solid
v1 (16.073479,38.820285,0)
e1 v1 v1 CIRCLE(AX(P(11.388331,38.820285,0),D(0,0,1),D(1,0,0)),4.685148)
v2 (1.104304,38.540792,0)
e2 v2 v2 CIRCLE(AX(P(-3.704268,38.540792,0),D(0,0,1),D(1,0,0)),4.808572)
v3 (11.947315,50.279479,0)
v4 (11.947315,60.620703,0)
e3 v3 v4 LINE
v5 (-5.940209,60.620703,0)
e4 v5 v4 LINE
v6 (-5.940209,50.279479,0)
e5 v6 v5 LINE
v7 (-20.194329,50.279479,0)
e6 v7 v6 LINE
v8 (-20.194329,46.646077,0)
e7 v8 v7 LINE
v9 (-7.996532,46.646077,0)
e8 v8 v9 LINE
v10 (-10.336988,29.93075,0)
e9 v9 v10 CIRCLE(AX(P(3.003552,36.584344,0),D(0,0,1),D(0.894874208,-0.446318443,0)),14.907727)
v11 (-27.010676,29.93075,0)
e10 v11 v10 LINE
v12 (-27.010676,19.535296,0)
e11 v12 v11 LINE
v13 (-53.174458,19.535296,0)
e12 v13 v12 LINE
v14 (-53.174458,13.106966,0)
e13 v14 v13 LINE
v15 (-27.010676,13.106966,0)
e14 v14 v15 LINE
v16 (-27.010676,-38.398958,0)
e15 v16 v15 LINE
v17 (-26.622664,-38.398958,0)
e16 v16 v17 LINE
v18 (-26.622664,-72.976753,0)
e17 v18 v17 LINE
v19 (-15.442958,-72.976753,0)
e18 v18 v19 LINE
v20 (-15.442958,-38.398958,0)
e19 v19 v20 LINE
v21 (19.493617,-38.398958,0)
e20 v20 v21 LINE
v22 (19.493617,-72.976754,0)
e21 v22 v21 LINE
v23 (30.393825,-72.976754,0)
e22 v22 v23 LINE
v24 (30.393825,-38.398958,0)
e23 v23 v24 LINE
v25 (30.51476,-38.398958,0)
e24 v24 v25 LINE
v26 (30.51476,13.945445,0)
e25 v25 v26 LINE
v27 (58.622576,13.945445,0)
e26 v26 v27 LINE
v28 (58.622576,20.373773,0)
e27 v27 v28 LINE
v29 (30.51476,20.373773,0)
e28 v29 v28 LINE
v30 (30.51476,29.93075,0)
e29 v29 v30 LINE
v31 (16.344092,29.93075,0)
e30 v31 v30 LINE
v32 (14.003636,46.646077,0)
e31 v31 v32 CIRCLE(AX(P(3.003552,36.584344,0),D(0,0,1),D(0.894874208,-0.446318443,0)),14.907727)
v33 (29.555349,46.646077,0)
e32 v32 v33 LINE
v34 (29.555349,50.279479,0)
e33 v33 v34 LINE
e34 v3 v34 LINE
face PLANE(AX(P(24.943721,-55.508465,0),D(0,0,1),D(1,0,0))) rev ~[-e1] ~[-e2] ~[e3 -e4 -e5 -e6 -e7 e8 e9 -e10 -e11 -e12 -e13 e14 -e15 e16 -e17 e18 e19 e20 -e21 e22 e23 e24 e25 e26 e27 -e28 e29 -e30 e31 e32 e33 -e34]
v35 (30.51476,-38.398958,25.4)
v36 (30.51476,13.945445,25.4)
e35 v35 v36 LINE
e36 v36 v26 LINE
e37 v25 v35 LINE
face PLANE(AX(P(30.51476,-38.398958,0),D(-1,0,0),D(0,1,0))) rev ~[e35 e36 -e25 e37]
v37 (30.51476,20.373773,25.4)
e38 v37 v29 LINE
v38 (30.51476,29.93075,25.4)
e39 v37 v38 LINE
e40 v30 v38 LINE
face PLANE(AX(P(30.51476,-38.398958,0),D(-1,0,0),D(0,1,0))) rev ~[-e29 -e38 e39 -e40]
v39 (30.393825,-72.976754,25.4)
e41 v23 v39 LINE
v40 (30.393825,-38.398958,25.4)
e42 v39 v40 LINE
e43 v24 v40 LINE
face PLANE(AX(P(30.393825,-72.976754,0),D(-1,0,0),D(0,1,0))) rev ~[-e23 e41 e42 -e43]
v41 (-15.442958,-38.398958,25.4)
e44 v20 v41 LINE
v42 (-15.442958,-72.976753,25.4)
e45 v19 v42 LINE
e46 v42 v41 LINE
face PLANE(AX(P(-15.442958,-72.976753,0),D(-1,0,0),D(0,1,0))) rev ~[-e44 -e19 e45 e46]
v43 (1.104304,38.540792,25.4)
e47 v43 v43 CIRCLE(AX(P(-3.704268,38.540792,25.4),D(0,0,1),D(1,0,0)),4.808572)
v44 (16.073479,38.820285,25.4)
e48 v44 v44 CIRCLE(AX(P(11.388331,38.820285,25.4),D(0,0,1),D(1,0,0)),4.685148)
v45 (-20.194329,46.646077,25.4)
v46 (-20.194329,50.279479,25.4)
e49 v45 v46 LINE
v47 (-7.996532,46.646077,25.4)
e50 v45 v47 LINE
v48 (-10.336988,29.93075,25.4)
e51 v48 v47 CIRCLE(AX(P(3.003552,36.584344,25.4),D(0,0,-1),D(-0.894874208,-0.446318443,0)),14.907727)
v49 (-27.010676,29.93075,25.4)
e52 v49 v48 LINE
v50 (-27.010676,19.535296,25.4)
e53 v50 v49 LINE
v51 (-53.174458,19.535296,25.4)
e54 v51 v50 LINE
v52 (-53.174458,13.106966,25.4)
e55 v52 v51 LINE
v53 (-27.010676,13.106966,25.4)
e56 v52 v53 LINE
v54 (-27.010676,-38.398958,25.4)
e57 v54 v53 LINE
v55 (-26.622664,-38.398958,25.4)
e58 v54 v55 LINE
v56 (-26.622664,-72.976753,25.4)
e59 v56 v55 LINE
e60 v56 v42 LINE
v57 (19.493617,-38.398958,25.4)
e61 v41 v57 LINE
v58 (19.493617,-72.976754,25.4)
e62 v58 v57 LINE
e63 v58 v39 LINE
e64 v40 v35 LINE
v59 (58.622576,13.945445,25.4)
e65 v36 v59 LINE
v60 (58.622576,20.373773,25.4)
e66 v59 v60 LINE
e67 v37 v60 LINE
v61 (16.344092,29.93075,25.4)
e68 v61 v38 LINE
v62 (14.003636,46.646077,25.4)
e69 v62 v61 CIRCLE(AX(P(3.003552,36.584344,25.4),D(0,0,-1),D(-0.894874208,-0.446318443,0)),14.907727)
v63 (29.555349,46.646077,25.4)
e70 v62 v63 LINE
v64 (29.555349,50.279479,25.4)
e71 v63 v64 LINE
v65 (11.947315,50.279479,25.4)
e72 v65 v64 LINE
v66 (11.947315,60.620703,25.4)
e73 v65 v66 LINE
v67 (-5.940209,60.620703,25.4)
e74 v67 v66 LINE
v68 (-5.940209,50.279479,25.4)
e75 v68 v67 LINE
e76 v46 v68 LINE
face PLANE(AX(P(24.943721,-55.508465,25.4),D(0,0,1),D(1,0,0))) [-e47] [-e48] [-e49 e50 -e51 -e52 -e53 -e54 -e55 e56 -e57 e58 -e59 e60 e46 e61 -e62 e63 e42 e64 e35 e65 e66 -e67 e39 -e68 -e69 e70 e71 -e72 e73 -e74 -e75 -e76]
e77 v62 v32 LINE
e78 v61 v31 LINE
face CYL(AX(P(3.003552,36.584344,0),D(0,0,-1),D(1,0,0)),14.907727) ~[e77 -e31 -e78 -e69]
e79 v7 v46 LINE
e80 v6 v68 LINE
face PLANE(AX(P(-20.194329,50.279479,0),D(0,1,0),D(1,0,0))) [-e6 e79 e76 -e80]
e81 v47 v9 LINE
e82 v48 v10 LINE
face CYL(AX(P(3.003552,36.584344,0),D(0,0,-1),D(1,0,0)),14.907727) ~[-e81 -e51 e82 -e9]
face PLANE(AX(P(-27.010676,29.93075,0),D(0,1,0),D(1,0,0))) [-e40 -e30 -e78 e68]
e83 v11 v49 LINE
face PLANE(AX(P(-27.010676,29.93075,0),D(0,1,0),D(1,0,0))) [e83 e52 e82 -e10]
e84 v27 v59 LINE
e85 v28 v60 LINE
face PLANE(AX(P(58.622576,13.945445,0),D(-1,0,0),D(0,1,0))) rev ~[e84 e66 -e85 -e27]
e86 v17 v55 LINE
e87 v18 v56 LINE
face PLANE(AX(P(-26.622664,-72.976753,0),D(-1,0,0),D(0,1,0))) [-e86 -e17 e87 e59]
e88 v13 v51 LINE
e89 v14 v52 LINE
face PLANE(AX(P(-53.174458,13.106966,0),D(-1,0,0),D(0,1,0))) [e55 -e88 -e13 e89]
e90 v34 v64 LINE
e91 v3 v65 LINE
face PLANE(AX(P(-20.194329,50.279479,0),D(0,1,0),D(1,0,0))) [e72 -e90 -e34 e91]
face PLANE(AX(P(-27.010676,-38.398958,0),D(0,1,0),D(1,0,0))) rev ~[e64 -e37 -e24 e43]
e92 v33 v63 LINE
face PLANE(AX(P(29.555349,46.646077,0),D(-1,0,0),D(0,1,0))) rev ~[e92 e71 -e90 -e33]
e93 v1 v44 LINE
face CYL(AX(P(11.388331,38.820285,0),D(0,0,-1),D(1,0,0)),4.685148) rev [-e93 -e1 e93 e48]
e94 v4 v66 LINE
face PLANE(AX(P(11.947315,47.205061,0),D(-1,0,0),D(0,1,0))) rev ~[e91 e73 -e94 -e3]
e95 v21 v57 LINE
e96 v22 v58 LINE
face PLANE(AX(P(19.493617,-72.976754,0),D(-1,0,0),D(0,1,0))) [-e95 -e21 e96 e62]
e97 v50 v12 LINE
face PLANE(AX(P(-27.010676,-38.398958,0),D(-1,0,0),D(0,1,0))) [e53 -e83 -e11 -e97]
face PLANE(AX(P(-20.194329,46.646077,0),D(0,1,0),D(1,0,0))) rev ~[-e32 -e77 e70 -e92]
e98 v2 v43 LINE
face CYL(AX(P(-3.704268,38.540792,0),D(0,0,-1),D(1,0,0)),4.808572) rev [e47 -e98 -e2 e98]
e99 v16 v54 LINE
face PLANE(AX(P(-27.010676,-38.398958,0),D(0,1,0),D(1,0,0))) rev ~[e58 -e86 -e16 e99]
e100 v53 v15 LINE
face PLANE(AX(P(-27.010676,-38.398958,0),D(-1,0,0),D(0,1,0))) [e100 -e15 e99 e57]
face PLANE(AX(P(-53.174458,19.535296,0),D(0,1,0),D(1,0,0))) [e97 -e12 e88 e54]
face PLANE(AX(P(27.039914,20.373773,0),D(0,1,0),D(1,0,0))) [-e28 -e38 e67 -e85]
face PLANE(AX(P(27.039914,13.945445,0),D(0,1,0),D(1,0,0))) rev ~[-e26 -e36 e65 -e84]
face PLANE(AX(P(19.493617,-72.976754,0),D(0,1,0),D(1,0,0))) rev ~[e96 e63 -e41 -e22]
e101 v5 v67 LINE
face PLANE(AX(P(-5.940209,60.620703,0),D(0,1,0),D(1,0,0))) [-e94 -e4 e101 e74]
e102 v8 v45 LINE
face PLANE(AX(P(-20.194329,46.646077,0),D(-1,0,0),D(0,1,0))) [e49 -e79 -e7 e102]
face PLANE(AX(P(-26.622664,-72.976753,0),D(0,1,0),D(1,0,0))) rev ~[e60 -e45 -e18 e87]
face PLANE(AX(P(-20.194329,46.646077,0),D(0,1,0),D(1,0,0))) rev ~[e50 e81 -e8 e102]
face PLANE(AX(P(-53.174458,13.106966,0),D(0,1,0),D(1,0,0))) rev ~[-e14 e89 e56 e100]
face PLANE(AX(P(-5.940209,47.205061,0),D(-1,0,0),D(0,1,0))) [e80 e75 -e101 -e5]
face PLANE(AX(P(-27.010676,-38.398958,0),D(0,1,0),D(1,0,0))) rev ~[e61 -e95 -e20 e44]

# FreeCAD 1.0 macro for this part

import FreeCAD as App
import Part
import Sketcher
Q = App.Units.Quantity

doc = App.newDocument("Part")
body = doc.addObject("PartDesign::Body", "Body")

# Sketch on XY plane
sketch1 = body.newObject("Sketcher::SketchObject", "Sketch")
sketch1.AttachmentSupport = (doc.getObject("XY_Plane"), [""])
sketch1.MapMode = "FlatFace"
sketch1.addGeometry([
    Part.LineSegment(App.Vector(-27.010676, 29.93075, 0), App.Vector(-27.010676, -38.398958, 0)),
    Part.LineSegment(App.Vector(-27.010676, -38.398958, 0), App.Vector(30.51476, -38.398958, 0)),
    Part.LineSegment(App.Vector(30.51476, -38.398958, 0), App.Vector(30.51476, 29.93075, 0)),
    Part.LineSegment(App.Vector(30.51476, 29.93075, 0), App.Vector(-27.010676, 29.93075, 0)),
], False)
sketch1.addConstraint([
    Sketcher.Constraint("Coincident", 0, 2, 1, 1),
    Sketcher.Constraint("Coincident", 1, 2, 2, 1),
    Sketcher.Constraint("Coincident", 2, 2, 3, 1),
    Sketcher.Constraint("Coincident", 3, 2, 0, 1),
    Sketcher.Constraint("Vertical", 0),
    Sketcher.Constraint("Horizontal", 1),
    Sketcher.Constraint("Vertical", 2),
    Sketcher.Constraint("Horizontal", 3),
    Sketcher.Constraint("DistanceY", 0, 2, 0, 1, 68.329709),
    Sketcher.Constraint("DistanceX", 1, 1, 1, 2, 57.525436),
    Sketcher.Constraint("DistanceY", 0, 2, -1, 1, 38.398958),
    Sketcher.Constraint("DistanceX", -1, 1, 1, 2, 30.51476),
])
pad1 = body.newObject("PartDesign::Pad", "Pad")
pad1.Profile = sketch1
pad1.Length = Q("1 in")

# Sketch on XY plane
sketch2 = body.newObject("Sketcher::SketchObject", "Sketch001")
sketch2.AttachmentSupport = (doc.getObject("XY_Plane"), [""])
sketch2.MapMode = "FlatFace"
sketch2.addGeometry(Part.Circle(App.Vector(3.003552, 36.584344, 0), App.Vector(0, 0, 1), 14.907727), False)
sketch2.addConstraint([
    Sketcher.Constraint("Diameter", 0, 29.815454),
    Sketcher.Constraint("DistanceX", -1, 1, 0, 3, 3.003552),
    Sketcher.Constraint("DistanceY", -1, 1, 0, 3, 36.584344),
])
pad2 = body.newObject("PartDesign::Pad", "Pad001")
pad2.Profile = sketch2
pad2.Length = Q("1 in")

# Sketch on XY plane
sketch3 = body.newObject("Sketcher::SketchObject", "Sketch002")
sketch3.AttachmentSupport = (doc.getObject("XY_Plane"), [""])
sketch3.MapMode = "FlatFace"
sketch3.addGeometry([
    Part.LineSegment(App.Vector(-20.194329, 50.279479, 0), App.Vector(-20.194329, 46.646077, 0)),
    Part.LineSegment(App.Vector(-20.194329, 46.646077, 0), App.Vector(29.555349, 46.646077, 0)),
    Part.LineSegment(App.Vector(29.555349, 46.646077, 0), App.Vector(29.555349, 50.279479, 0)),
    Part.LineSegment(App.Vector(29.555349, 50.279479, 0), App.Vector(-20.194329, 50.279479, 0)),
], False)
sketch3.addConstraint([
    Sketcher.Constraint("Coincident", 0, 2, 1, 1),
    Sketcher.Constraint("Coincident", 1, 2, 2, 1),
    Sketcher.Constraint("Coincident", 2, 2, 3, 1),
    Sketcher.Constraint("Coincident", 3, 2, 0, 1),
    Sketcher.Constraint("Vertical", 0),
    Sketcher.Constraint("Horizontal", 1),
    Sketcher.Constraint("Vertical", 2),
    Sketcher.Constraint("Horizontal", 3),
    Sketcher.Constraint("DistanceX", 1, 1, 1, 2, 49.749678),
    Sketcher.Constraint("DistanceY", 0, 2, 0, 1, 3.633402),
    Sketcher.Constraint("DistanceX", 0, 2, -1, 1, 20.194329),
    Sketcher.Constraint("DistanceY", -1, 1, 2, 2, 50.279479),
])
pad3 = body.newObject("PartDesign::Pad", "Pad002")
pad3.Profile = sketch3
pad3.Length = Q("1 in")

# Sketch on XY plane
sketch4 = body.newObject("Sketcher::SketchObject", "Sketch003")
sketch4.AttachmentSupport = (doc.getObject("XY_Plane"), [""])
sketch4.MapMode = "FlatFace"
sketch4.addGeometry([
    Part.LineSegment(App.Vector(-5.940209, 60.620703, 0), App.Vector(-5.940209, 47.205061, 0)),
    Part.LineSegment(App.Vector(-5.940209, 47.205061, 0), App.Vector(11.947315, 47.205061, 0)),
    Part.LineSegment(App.Vector(11.947315, 47.205061, 0), App.Vector(11.947315, 60.620703, 0)),
    Part.LineSegment(App.Vector(11.947315, 60.620703, 0), App.Vector(-5.940209, 60.620703, 0)),
], False)
sketch4.addConstraint([
    Sketcher.Constraint("Coincident", 0, 2, 1, 1),
    Sketcher.Constraint("Coincident", 1, 2, 2, 1),
    Sketcher.Constraint("Coincident", 2, 2, 3, 1),
    Sketcher.Constraint("Coincident", 3, 2, 0, 1),
    Sketcher.Constraint("Vertical", 0),
    Sketcher.Constraint("Horizontal", 1),
    Sketcher.Constraint("Vertical", 2),
    Sketcher.Constraint("Horizontal", 3),
    Sketcher.Constraint("DistanceY", 0, 2, 0, 1, 13.415642),
    Sketcher.Constraint("DistanceX", 1, 1, 1, 2, 17.887524),
    Sketcher.Constraint("DistanceX", 0, 2, -1, 1, 5.940209),
    Sketcher.Constraint("DistanceY", -1, 1, 0, 2, 47.205061),
])
pad4 = body.newObject("PartDesign::Pad", "Pad003")
pad4.Profile = sketch4
pad4.Length = Q("1 in")

# Sketch on XY plane
sketch5 = body.newObject("Sketcher::SketchObject", "Sketch004")
sketch5.AttachmentSupport = (doc.getObject("XY_Plane"), [""])
sketch5.MapMode = "FlatFace"
sketch5.addGeometry([
    Part.LineSegment(App.Vector(27.039914, 20.373773, 0), App.Vector(27.039914, 13.945445, 0)),  # 0
    Part.LineSegment(App.Vector(27.039914, 13.945445, 0), App.Vector(58.622576, 13.945445, 0)),  # 1
    Part.LineSegment(App.Vector(58.622576, 13.945445, 0), App.Vector(58.622576, 20.373773, 0)),  # 2
    Part.LineSegment(App.Vector(58.622576, 20.373773, 0), App.Vector(27.039914, 20.373773, 0)),  # 3
    Part.LineSegment(App.Vector(-53.174458, 19.535296, 0), App.Vector(-53.174458, 13.106966, 0)),  # 4
    Part.LineSegment(App.Vector(-53.174458, 13.106966, 0), App.Vector(-22.150776, 13.106966, 0)),  # 5
    Part.LineSegment(App.Vector(-22.150776, 13.106966, 0), App.Vector(-22.150776, 19.535296, 0)),  # 6
    Part.LineSegment(App.Vector(-22.150776, 19.535296, 0), App.Vector(-53.174458, 19.535296, 0)),  # 7
], False)
sketch5.addConstraint([
    Sketcher.Constraint("Coincident", 0, 2, 1, 1),
    Sketcher.Constraint("Coincident", 1, 2, 2, 1),
    Sketcher.Constraint("Coincident", 2, 2, 3, 1),
    Sketcher.Constraint("Coincident", 3, 2, 0, 1),
    Sketcher.Constraint("Coincident", 4, 2, 5, 1),
    Sketcher.Constraint("Coincident", 5, 2, 6, 1),
    Sketcher.Constraint("Coincident", 6, 2, 7, 1),
    Sketcher.Constraint("Coincident", 7, 2, 4, 1),
    Sketcher.Constraint("Vertical", 0),
    Sketcher.Constraint("Horizontal", 1),
    Sketcher.Constraint("Vertical", 2),
    Sketcher.Constraint("Horizontal", 3),
    Sketcher.Constraint("Vertical", 4),
    Sketcher.Constraint("Horizontal", 5),
    Sketcher.Constraint("Vertical", 6),
    Sketcher.Constraint("Horizontal", 7),
    Sketcher.Constraint("Equal", 2, 4),
    Sketcher.Constraint("DistanceX", 1, 1, 1, 2, 31.582661),
    Sketcher.Constraint("DistanceX", 5, 1, 5, 2, 31.023681),
    Sketcher.Constraint("DistanceY", 0, 2, 0, 1, 6.428329),
    Sketcher.Constraint("DistanceX", 4, 2, 0, 2, 80.214372),
    Sketcher.Constraint("DistanceY", 4, 2, 0, 2, 0.838479),
    Sketcher.Constraint("DistanceX", -1, 1, 0, 2, 27.039914),
    Sketcher.Constraint("DistanceY", -1, 1, 0, 2, 13.945445),
])
pad5 = body.newObject("PartDesign::Pad", "Pad004")
pad5.Profile = sketch5
pad5.Length = Q("1 in")

# Sketch on XY plane
sketch6 = body.newObject("Sketcher::SketchObject", "Sketch005")
sketch6.AttachmentSupport = (doc.getObject("XY_Plane"), [""])
sketch6.MapMode = "FlatFace"
sketch6.addGeometry([
    Part.LineSegment(App.Vector(19.493617, -38.040177, 0), App.Vector(19.493617, -72.976754, 0)),  # 0
    Part.LineSegment(App.Vector(19.493617, -72.976754, 0), App.Vector(30.393825, -72.976754, 0)),  # 1
    Part.LineSegment(App.Vector(30.393825, -72.976754, 0), App.Vector(30.393825, -38.040177, 0)),  # 2
    Part.LineSegment(App.Vector(30.393825, -38.040177, 0), App.Vector(19.493617, -38.040177, 0)),  # 3
    Part.LineSegment(App.Vector(-26.622664, -37.760686, 0), App.Vector(-26.622664, -72.976753, 0)),  # 4
    Part.LineSegment(App.Vector(-26.622664, -72.976753, 0), App.Vector(-15.442958, -72.976753, 0)),  # 5
    Part.LineSegment(App.Vector(-15.442958, -72.976753, 0), App.Vector(-15.442958, -37.760686, 0)),  # 6
    Part.LineSegment(App.Vector(-15.442958, -37.760686, 0), App.Vector(-26.622664, -37.760686, 0)),  # 7
], False)
sketch6.addConstraint([
    Sketcher.Constraint("Coincident", 0, 2, 1, 1),
    Sketcher.Constraint("Coincident", 1, 2, 2, 1),
    Sketcher.Constraint("Coincident", 2, 2, 3, 1),
    Sketcher.Constraint("Coincident", 3, 2, 0, 1),
    Sketcher.Constraint("Coincident", 4, 2, 5, 1),
    Sketcher.Constraint("Coincident", 5, 2, 6, 1),
    Sketcher.Constraint("Coincident", 6, 2, 7, 1),
    Sketcher.Constraint("Coincident", 7, 2, 4, 1),
    Sketcher.Constraint("Vertical", 0),
    Sketcher.Constraint("Horizontal", 1),
    Sketcher.Constraint("Vertical", 2),
    Sketcher.Constraint("Horizontal", 3),
    Sketcher.Constraint("Vertical", 4),
    Sketcher.Constraint("Horizontal", 5),
    Sketcher.Constraint("Vertical", 6),
    Sketcher.Constraint("Horizontal", 7),
    Sketcher.Constraint("Horizontal", 1, 2, 4, 2),
    Sketcher.Constraint("DistanceX", 1, 1, 1, 2, 10.900209),
    Sketcher.Constraint("DistanceX", 5, 1, 5, 2, 11.179707),
    Sketcher.Constraint("DistanceY", 0, 2, 0, 1, 34.936577),
    Sketcher.Constraint("DistanceY", 4, 2, 4, 1, 35.216067),
    Sketcher.Constraint("DistanceX", 4, 2, 0, 2, 46.116281),
    Sketcher.Constraint("DistanceX", -1, 1, 0, 2, 19.493617),
    Sketcher.Constraint("DistanceY", 0, 2, -1, 1, 72.976754),
])
pad6 = body.newObject("PartDesign::Pad", "Pad005")
pad6.Profile = sketch6
pad6.Length = Q("1 in")

# Sketch on XY plane
sketch7 = body.newObject("Sketcher::SketchObject", "Sketch006")
sketch7.AttachmentSupport = (doc.getObject("XY_Plane"), [""])
sketch7.MapMode = "FlatFace"
sketch7.addGeometry([
    Part.Circle(App.Vector(11.388331, 38.820285, 0), App.Vector(0, 0, 1), 4.685148),
    Part.Circle(App.Vector(-3.704268, 38.540792, 0), App.Vector(0, 0, 1), 4.808572),
], False)
sketch7.addConstraint([
    Sketcher.Constraint("Diameter", 0, 9.370296),
    Sketcher.Constraint("Diameter", 1, 9.617144),
    Sketcher.Constraint("DistanceX", 1, 3, 0, 3, 15.092599),
    Sketcher.Constraint("DistanceX", -1, 1, 0, 3, 11.388331),
    Sketcher.Constraint("DistanceY", -1, 1, 0, 3, 38.820285),
    Sketcher.Constraint("DistanceY", -1, 1, 1, 3, 38.540792),
])
pocket1 = body.newObject("PartDesign::Pocket", "Pocket")
pocket1.Profile = sketch7
pocket1.Length = Q("1 in")
pocket1.Reversed = True

doc.recompute()
